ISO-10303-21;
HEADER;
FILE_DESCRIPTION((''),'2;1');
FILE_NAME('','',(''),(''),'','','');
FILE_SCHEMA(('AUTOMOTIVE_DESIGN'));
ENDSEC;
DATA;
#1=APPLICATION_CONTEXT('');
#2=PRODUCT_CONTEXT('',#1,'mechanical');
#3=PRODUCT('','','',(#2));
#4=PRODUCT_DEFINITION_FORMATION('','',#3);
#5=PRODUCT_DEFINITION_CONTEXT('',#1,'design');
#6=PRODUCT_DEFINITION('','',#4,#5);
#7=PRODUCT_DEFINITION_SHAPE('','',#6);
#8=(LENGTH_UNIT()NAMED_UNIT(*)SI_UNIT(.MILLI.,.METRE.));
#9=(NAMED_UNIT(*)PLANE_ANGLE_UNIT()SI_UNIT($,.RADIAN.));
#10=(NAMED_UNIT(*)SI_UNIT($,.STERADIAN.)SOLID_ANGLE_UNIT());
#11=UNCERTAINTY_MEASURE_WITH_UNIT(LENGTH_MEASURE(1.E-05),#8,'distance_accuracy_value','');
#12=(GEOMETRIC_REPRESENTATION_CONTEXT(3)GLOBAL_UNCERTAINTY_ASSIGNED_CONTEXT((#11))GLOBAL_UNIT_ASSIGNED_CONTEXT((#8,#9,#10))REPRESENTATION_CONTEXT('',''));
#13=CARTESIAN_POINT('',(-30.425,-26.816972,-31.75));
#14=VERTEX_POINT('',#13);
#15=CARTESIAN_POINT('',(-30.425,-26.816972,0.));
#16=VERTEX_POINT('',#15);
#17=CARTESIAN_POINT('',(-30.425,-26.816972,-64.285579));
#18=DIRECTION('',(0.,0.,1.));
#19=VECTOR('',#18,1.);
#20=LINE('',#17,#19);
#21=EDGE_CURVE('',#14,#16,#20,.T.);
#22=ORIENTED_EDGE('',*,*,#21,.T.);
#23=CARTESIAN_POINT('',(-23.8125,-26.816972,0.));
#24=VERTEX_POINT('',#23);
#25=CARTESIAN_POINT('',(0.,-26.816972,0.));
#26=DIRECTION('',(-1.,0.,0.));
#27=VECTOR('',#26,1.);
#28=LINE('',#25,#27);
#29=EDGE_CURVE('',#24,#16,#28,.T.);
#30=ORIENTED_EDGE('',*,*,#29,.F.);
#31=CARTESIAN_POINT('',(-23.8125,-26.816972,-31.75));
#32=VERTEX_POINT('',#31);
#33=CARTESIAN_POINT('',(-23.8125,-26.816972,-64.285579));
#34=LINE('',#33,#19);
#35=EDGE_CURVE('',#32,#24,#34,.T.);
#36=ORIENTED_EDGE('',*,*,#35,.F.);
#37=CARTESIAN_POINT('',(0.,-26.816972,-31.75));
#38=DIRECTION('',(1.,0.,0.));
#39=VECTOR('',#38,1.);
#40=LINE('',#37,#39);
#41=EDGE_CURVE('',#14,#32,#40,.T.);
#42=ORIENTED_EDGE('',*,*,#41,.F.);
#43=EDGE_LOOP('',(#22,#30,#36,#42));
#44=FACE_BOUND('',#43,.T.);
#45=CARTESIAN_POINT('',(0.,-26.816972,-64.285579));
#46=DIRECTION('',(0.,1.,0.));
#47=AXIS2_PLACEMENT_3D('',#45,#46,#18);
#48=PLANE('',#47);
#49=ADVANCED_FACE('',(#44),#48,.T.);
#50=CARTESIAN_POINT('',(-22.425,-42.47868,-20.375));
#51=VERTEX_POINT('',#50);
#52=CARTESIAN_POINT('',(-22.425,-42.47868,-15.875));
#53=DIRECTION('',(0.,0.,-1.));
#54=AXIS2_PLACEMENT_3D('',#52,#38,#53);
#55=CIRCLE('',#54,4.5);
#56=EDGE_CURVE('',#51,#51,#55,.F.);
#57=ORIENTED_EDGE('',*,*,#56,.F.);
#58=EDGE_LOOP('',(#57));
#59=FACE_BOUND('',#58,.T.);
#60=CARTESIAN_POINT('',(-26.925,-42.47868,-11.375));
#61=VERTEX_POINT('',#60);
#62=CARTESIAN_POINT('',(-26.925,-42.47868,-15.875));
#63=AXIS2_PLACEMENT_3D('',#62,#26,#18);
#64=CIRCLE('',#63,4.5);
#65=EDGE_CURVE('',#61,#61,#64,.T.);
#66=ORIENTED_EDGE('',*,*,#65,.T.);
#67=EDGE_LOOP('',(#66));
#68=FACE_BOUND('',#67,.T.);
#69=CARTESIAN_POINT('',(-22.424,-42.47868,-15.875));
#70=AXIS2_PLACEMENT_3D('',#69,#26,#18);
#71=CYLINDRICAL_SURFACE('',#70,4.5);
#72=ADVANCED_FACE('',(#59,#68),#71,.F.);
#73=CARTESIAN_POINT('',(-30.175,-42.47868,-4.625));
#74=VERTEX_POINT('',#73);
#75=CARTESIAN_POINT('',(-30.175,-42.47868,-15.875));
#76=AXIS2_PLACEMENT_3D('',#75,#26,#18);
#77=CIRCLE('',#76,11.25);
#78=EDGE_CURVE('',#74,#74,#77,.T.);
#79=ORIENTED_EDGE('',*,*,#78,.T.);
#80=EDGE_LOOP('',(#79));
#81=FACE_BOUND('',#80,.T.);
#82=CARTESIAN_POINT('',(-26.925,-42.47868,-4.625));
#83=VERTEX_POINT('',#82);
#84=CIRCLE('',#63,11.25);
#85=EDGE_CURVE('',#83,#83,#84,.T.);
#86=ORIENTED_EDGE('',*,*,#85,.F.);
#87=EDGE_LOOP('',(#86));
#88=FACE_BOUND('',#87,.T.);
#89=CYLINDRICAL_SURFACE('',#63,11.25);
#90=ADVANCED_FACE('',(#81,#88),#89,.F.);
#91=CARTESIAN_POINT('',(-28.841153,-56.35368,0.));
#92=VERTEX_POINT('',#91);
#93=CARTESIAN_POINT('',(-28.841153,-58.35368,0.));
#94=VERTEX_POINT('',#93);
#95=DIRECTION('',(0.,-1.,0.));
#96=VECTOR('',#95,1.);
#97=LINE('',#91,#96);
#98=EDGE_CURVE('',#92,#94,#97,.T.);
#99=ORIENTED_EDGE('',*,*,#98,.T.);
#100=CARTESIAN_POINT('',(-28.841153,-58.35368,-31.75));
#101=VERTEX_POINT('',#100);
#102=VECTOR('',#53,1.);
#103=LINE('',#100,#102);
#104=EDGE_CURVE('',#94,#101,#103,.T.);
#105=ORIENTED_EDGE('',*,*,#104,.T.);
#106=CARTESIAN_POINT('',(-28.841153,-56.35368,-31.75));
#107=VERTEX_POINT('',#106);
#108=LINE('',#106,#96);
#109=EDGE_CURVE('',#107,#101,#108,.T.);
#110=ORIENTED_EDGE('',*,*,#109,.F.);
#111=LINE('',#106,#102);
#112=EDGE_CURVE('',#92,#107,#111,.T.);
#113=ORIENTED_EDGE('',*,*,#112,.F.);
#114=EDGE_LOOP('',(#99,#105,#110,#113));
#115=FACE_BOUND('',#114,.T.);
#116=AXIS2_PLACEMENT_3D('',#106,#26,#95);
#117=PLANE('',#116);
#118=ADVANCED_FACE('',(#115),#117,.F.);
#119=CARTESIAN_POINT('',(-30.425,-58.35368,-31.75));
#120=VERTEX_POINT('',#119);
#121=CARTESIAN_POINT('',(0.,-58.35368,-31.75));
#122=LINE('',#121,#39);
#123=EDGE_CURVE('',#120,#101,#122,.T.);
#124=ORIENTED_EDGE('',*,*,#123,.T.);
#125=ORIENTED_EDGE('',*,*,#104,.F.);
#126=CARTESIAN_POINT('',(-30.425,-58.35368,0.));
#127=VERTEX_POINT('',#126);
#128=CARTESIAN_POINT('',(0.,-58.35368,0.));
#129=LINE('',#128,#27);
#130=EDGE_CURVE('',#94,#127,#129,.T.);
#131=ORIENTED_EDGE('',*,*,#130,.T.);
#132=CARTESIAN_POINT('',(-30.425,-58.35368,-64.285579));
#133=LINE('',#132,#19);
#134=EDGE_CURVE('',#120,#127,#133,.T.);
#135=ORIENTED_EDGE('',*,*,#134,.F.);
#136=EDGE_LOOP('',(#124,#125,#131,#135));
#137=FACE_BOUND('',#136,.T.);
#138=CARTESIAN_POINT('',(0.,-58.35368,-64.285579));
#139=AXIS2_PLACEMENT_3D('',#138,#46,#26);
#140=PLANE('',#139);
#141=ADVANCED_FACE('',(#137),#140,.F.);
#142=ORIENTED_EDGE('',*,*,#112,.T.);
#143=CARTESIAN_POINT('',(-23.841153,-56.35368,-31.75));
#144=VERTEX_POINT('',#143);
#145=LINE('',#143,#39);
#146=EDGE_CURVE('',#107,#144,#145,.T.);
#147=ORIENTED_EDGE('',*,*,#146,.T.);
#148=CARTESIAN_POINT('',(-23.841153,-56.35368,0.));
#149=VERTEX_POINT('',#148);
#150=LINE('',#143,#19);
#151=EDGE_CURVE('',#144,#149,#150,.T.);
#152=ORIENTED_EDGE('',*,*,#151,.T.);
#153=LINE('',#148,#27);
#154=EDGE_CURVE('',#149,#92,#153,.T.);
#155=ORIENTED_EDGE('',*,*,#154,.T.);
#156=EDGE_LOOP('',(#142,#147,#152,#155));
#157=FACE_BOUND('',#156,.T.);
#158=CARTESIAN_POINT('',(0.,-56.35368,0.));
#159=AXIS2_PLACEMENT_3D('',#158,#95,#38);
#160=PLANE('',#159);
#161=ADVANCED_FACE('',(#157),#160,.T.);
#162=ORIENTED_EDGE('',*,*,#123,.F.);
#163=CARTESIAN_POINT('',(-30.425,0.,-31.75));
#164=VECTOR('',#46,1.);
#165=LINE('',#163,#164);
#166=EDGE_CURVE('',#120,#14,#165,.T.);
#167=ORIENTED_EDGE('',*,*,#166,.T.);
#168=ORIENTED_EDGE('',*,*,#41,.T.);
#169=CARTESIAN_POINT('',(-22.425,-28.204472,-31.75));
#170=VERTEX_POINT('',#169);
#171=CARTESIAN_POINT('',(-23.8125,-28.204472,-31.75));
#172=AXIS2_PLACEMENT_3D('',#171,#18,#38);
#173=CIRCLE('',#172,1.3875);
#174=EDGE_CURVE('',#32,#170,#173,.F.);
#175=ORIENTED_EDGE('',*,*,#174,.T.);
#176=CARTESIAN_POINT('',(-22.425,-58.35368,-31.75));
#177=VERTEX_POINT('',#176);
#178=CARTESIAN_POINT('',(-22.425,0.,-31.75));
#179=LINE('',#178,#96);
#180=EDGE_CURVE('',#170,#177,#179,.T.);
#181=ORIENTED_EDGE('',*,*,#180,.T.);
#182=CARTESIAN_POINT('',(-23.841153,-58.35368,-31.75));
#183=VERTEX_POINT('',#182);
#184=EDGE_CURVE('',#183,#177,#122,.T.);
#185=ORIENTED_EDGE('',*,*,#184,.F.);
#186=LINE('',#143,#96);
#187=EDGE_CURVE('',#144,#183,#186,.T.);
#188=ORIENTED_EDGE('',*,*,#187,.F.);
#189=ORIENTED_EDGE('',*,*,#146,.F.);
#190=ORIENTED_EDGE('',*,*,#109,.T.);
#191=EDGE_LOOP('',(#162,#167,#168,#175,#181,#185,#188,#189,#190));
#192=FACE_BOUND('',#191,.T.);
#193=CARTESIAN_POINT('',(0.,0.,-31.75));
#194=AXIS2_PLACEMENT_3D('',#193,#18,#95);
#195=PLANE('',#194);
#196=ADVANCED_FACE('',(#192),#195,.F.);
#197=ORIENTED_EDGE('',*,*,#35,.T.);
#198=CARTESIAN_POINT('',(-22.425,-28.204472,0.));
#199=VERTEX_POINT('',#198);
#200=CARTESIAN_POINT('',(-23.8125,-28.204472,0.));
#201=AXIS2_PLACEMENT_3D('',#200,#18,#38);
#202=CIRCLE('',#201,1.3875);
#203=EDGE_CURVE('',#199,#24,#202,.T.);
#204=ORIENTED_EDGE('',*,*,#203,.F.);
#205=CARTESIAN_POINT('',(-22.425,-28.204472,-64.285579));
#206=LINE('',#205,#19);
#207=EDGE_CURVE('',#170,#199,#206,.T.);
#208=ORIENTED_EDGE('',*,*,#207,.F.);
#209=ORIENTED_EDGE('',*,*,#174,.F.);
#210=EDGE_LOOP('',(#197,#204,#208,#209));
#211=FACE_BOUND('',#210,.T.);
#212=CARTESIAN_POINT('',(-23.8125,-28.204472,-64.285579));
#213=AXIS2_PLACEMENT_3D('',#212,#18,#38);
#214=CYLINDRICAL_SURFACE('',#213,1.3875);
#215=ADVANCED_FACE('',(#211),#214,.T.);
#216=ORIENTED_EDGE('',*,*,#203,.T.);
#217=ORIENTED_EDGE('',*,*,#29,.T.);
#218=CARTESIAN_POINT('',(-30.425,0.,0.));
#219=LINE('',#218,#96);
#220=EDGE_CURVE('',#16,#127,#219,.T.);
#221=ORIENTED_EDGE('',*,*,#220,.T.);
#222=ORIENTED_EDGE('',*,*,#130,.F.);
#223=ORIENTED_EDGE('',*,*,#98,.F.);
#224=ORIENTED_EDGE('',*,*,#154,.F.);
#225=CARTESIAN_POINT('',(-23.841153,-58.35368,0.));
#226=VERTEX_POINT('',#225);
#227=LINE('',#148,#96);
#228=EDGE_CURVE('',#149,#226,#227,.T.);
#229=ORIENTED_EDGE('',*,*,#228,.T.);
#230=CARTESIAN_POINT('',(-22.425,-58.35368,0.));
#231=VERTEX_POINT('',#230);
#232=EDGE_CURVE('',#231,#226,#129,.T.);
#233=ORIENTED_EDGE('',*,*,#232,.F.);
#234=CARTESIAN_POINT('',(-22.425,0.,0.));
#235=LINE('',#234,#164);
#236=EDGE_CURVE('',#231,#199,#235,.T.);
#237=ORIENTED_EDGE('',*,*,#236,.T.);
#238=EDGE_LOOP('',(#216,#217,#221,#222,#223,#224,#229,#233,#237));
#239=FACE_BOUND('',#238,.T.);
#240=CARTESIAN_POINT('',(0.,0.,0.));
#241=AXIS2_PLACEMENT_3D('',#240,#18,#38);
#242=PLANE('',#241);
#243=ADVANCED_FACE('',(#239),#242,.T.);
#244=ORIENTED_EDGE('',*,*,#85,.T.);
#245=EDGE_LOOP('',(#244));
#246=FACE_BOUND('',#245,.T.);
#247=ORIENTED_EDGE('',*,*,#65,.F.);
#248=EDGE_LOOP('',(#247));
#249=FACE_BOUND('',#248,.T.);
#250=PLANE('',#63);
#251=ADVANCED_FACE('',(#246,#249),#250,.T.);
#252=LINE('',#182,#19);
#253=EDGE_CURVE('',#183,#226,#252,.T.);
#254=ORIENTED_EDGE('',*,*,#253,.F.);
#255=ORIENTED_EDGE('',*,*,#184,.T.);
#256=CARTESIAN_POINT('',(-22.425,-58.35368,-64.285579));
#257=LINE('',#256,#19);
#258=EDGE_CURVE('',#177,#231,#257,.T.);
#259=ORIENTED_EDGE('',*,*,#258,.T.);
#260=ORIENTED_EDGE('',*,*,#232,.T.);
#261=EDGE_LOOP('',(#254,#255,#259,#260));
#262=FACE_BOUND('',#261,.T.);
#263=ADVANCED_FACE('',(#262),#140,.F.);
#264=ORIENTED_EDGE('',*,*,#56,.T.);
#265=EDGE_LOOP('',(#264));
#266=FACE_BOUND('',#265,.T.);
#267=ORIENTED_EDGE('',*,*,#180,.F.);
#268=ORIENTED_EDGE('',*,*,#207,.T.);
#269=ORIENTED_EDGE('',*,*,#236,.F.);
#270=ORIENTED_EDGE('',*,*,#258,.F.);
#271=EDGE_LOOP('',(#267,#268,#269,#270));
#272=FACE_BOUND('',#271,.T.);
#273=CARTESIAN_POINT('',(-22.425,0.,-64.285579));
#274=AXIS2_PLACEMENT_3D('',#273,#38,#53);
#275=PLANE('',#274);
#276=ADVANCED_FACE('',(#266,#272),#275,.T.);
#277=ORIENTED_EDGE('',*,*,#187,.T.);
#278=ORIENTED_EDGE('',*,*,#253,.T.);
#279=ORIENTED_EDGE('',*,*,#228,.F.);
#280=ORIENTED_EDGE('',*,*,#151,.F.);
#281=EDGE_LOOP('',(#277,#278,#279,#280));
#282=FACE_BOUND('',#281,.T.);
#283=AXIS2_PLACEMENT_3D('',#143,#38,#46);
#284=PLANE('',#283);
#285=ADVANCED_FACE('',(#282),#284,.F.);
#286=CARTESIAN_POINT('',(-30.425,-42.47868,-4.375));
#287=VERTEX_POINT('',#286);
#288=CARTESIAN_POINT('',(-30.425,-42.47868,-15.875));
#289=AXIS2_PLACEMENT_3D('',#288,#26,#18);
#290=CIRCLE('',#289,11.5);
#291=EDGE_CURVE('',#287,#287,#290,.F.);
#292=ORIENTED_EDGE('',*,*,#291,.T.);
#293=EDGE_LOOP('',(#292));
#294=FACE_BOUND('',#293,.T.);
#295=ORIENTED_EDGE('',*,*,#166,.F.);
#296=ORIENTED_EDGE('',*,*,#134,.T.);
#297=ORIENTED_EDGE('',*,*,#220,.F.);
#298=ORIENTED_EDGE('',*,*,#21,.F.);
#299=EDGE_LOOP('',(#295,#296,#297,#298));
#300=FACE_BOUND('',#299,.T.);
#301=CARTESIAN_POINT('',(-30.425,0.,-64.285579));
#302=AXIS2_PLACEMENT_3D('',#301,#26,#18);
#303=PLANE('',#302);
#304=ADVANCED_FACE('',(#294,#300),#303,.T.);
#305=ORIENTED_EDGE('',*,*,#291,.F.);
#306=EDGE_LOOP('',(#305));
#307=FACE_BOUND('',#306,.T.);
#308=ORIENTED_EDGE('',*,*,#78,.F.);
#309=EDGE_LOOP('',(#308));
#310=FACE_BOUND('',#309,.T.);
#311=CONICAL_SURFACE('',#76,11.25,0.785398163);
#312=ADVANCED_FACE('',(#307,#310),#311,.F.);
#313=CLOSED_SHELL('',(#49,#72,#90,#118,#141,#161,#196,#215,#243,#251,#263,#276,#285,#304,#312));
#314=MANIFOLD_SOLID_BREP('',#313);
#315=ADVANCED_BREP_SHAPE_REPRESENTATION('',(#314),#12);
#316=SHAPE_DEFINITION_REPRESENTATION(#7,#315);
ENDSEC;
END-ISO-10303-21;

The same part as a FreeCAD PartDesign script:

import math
import FreeCAD as App
import Part
import Sketcher
from FreeCAD import Vector


def edges_at(feature, points):
    """Names of the edges that pass closest to the given points."""
    edges = feature.Shape.Edges
    near = lambda p: min(range(len(edges)), key=lambda i: edges[i].distToShape(Part.Vertex(*p))[0])
    return sorted({f"Edge{near(p) + 1}" for p in points})


def add_polygon(sketch, points):
    """Adds a closed chain of lines whose ends are joined by coincident constraints."""
    first, n = sketch.GeometryCount, len(points)
    for a, b in zip(points, points[1:] + points[:1]):
        sketch.addGeometry(Part.LineSegment(App.Vector(*a, 0), App.Vector(*b, 0)), False)
    for i in range(n):
        sketch.addConstraint(Sketcher.Constraint("Coincident", first + i, 2, first + (i + 1) % n, 1))

doc = App.newDocument("Part")
params = doc.addObject("Spreadsheet::Sheet", "Params")
for row, (alias, value) in enumerate([
    ("sketch1_width", "8 mm"),
    ("pad1_length", "31.75 mm"),
    ("sketch2_diameter", "9 mm"),
    ("sketch2_diameter2", "22.5 mm"),
    ("pocket1_length", "3.5 mm"),
    ("sketch3_diameter", "9 mm"),
    ("sketch4_width", "5 mm"),
    ("sketch4_height", "31.75 mm"),
    ("pocket3_length", "2 mm"),
    ("chamfer_size", "0.25 mm"),
], start=1):
    params.set(f"A{row}", alias)
    params.set(f"B{row}", "=" + value)
    params.setAlias(f"B{row}", alias)

body = doc.addObject("PartDesign::Body", "Body")

# Sketch on XY plane
sketch1 = body.newObject("Sketcher::SketchObject", "Sketch")
sketch1.AttachmentSupport = (doc.getObject("XY_Plane"), [""])
sketch1.MapMode = "FlatFace"
sketch1.addGeometry(Part.LineSegment(Vector(-22.425, -58.35368, 0), Vector(-22.425, -28.204472, 0)), False)
sketch1.addGeometry(Part.ArcOfCircle(Part.Circle(Vector(-23.8125, -28.204472, 0), Vector(0, 0, 1), 1.3875), math.radians(0), math.radians(90)), False)
sketch1.addGeometry(Part.LineSegment(Vector(-23.8125, -26.816972, 0), Vector(-30.425, -26.816972, 0)), False)
sketch1.addGeometry(Part.LineSegment(Vector(-30.425, -26.816972, 0), Vector(-30.425, -58.35368, 0)), False)
sketch1.addGeometry(Part.LineSegment(Vector(-30.425, -58.35368, 0), Vector(-22.425, -58.35368, 0)), False)
sketch1.addConstraint(Sketcher.Constraint("Tangent", 0, 2, 1, 1))
sketch1.addConstraint(Sketcher.Constraint("Tangent", 1, 2, 2, 1))
sketch1.addConstraint(Sketcher.Constraint("Coincident", 2, 2, 3, 1))
sketch1.addConstraint(Sketcher.Constraint("Coincident", 3, 2, 4, 1))
sketch1.addConstraint(Sketcher.Constraint("Coincident", 4, 2, 0, 1))
sketch1.addConstraint(Sketcher.Constraint("Vertical", 0))
sketch1.addConstraint(Sketcher.Constraint("Horizontal", 2))
sketch1.addConstraint(Sketcher.Constraint("Vertical", 3))
sketch1.addConstraint(Sketcher.Constraint("Horizontal", 4))
sketch1.addConstraint(Sketcher.Constraint("DistanceX", 4, 1, 4, 2, 8.0))
sketch1.addConstraint(Sketcher.Constraint("Radius", 1, 1.3875))
sketch1.addConstraint(Sketcher.Constraint("DistanceX", 0, 2, -1, 1, 22.425))
sketch1.addConstraint(Sketcher.Constraint("DistanceY", 0, 1, 0, 2, 30.149207))
sketch1.addConstraint(Sketcher.Constraint("DistanceY", 3, 2, -1, 1, 58.35368))
sketch1.setExpression("Constraints[9]", "Params.sketch1_width")
pad1 = body.newObject("PartDesign::Pad", "Pad")
pad1.Profile = sketch1
pad1.setExpression("Length", "Params.pad1_length")
pad1.Reversed = True

# Sketch on YZ plane
sketch2 = body.newObject("Sketcher::SketchObject", "Sketch001")
sketch2.AttachmentSupport = (doc.getObject("YZ_Plane"), [""])
sketch2.MapMode = "FlatFace"
sketch2.AttachmentOffset = App.Placement(Vector(0, 0, -30.425), App.Rotation())
sketch2.addGeometry(Part.Circle(Vector(-42.47868, -15.875, 0), Vector(0, 0, 1), 11.25), False)
sketch2.addGeometry(Part.Circle(Vector(-42.47868, -15.875, 0), Vector(0, 0, 1), 4.5), False)
sketch2.addConstraint(Sketcher.Constraint("Coincident", 1, 3, 0, 3))
sketch2.addConstraint(Sketcher.Constraint("Diameter", 1, 9.0))
sketch2.addConstraint(Sketcher.Constraint("Diameter", 0, 22.5))
sketch2.addConstraint(Sketcher.Constraint("DistanceY", 0, 3, -1, 1, 15.875))
sketch2.addConstraint(Sketcher.Constraint("DistanceX", 0, 3, -1, 1, 42.47868))
sketch2.setExpression("Constraints[1]", "Params.sketch2_diameter")
sketch2.setExpression("Constraints[2]", "Params.sketch2_diameter2")
pocket1 = body.newObject("PartDesign::Pocket", "Pocket")
pocket1.Profile = sketch2
pocket1.setExpression("Length", "Params.pocket1_length")
pocket1.Reversed = True

# Sketch on YZ plane
sketch3 = body.newObject("Sketcher::SketchObject", "Sketch002")
sketch3.AttachmentSupport = (doc.getObject("YZ_Plane"), [""])
sketch3.MapMode = "FlatFace"
sketch3.AttachmentOffset = App.Placement(Vector(0, 0, -30.425), App.Rotation())
sketch3.addGeometry(Part.Circle(Vector(-42.47868, -15.875, 0), Vector(0, 0, 1), 4.5), False)
sketch3.addConstraint(Sketcher.Constraint("Diameter", 0, 9.0))
sketch3.addConstraint(Sketcher.Constraint("DistanceY", 0, 3, -1, 1, 15.875))
sketch3.addConstraint(Sketcher.Constraint("DistanceX", 0, 3, -1, 1, 42.47868))
sketch3.setExpression("Constraints[0]", "Params.sketch3_diameter")
pocket2 = body.newObject("PartDesign::Pocket", "Pocket001")
pocket2.Profile = sketch3
pocket2.Type = "UpToFirst"
pocket2.Reversed = True

# Sketch on XZ plane
sketch4 = body.newObject("Sketcher::SketchObject", "Sketch003")
sketch4.AttachmentSupport = (doc.getObject("XZ_Plane"), [""])
sketch4.MapMode = "FlatFace"
sketch4.AttachmentOffset = App.Placement(Vector(0, 0, 58.35368), App.Rotation())
add_polygon(sketch4, [(-28.841153, 0), (-28.841153, -31.75), (-23.841153, -31.75), (-23.841153, 0)])  # lines 0-3
sketch4.addConstraint(Sketcher.Constraint("Vertical", 0))
sketch4.addConstraint(Sketcher.Constraint("Horizontal", 1))
sketch4.addConstraint(Sketcher.Constraint("Vertical", 2))
sketch4.addConstraint(Sketcher.Constraint("Horizontal", 3))
sketch4.addConstraint(Sketcher.Constraint("PointOnObject", 2, 2, -1))
sketch4.addConstraint(Sketcher.Constraint("DistanceX", 1, 1, 1, 2, 5.0))
sketch4.addConstraint(Sketcher.Constraint("DistanceY", 0, 2, 0, 1, 31.75))
sketch4.addConstraint(Sketcher.Constraint("DistanceX", 0, 2, -1, 1, 28.841153))
sketch4.setExpression("Constraints[9]", "Params.sketch4_width")
sketch4.setExpression("Constraints[10]", "Params.sketch4_height")
pocket3 = body.newObject("PartDesign::Pocket", "Pocket002")
pocket3.Profile = sketch4
pocket3.setExpression("Length", "Params.pocket3_length")
doc.recompute()

chamfer = body.newObject("PartDesign::Chamfer", "Chamfer")
chamfer.Base = (pocket3, edges_at(pocket3, [(-30.425, -42.479, -27.125)]))
chamfer.setExpression("Size", "Params.chamfer_size")

doc.recompute()
